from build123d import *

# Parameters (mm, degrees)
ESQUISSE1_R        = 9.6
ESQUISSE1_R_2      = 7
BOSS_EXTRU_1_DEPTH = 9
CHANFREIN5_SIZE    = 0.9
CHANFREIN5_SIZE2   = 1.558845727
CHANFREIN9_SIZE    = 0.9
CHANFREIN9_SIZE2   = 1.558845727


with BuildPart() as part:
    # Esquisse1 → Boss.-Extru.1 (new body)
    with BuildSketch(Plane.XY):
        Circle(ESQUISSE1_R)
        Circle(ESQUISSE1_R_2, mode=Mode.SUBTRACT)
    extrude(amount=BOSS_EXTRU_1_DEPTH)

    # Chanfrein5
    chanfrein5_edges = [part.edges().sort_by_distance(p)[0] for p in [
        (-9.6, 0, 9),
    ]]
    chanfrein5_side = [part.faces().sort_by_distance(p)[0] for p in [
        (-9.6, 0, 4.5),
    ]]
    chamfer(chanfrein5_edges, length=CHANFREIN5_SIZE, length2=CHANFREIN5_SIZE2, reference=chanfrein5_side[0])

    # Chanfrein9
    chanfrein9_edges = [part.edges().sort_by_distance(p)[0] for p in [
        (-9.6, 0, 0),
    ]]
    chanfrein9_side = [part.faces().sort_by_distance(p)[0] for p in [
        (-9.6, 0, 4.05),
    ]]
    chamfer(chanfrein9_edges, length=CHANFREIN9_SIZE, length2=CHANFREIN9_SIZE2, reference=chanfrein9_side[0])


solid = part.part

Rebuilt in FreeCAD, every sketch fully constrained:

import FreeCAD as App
import Part
import Sketcher
from FreeCAD import Vector


def edges_at(feature, points):
    """Names of the edges that pass closest to the given points."""
    edges = feature.Shape.Edges
    near = lambda p: min(range(len(edges)), key=lambda i: edges[i].distToShape(Part.Vertex(*p))[0])
    return sorted({f"Edge{near(p) + 1}" for p in points})

doc = App.newDocument("Part")
body = doc.addObject("PartDesign::Body", "Body")

# Sketch on XY plane
sketch1 = body.newObject("Sketcher::SketchObject", "Sketch")
sketch1.AttachmentSupport = (doc.getObject("XY_Plane"), [""])
sketch1.MapMode = "FlatFace"
sketch1.addGeometry([
    Part.Circle(Vector(0, 0, 0), Vector(0, 0, 1), 10),
    Part.Circle(Vector(0, 0, 0), Vector(0, 0, 1), 7),
], False)
sketch1.addConstraint([
    Sketcher.Constraint("Coincident", 0, 3, -1, 1),
    Sketcher.Constraint("Coincident", 1, 3, -1, 1),
    Sketcher.Constraint("Diameter", 1, 14.0),
    Sketcher.Constraint("Diameter", 0, 19.2),
])
pad1 = body.newObject("PartDesign::Pad", "Pad")
pad1.Profile = sketch1
pad1.Length = 9
doc.recompute()

chamfer = body.newObject("PartDesign::Chamfer", "Chamfer")
chamfer.Base = (pad1, edges_at(pad1, [(-9.6, 0, 9)]))
chamfer.ChamferType = "Two distances"
chamfer.Size = 0.9
chamfer.Size2 = 1.558846
doc.recompute()

chamfer2 = body.newObject("PartDesign::Chamfer", "Chamfer001")
chamfer2.Base = (chamfer, edges_at(chamfer, [(-9.6, 0, 0)]))
chamfer2.ChamferType = "Two distances"
chamfer2.Size = 0.9
chamfer2.Size2 = 1.558846

doc.recompute()
